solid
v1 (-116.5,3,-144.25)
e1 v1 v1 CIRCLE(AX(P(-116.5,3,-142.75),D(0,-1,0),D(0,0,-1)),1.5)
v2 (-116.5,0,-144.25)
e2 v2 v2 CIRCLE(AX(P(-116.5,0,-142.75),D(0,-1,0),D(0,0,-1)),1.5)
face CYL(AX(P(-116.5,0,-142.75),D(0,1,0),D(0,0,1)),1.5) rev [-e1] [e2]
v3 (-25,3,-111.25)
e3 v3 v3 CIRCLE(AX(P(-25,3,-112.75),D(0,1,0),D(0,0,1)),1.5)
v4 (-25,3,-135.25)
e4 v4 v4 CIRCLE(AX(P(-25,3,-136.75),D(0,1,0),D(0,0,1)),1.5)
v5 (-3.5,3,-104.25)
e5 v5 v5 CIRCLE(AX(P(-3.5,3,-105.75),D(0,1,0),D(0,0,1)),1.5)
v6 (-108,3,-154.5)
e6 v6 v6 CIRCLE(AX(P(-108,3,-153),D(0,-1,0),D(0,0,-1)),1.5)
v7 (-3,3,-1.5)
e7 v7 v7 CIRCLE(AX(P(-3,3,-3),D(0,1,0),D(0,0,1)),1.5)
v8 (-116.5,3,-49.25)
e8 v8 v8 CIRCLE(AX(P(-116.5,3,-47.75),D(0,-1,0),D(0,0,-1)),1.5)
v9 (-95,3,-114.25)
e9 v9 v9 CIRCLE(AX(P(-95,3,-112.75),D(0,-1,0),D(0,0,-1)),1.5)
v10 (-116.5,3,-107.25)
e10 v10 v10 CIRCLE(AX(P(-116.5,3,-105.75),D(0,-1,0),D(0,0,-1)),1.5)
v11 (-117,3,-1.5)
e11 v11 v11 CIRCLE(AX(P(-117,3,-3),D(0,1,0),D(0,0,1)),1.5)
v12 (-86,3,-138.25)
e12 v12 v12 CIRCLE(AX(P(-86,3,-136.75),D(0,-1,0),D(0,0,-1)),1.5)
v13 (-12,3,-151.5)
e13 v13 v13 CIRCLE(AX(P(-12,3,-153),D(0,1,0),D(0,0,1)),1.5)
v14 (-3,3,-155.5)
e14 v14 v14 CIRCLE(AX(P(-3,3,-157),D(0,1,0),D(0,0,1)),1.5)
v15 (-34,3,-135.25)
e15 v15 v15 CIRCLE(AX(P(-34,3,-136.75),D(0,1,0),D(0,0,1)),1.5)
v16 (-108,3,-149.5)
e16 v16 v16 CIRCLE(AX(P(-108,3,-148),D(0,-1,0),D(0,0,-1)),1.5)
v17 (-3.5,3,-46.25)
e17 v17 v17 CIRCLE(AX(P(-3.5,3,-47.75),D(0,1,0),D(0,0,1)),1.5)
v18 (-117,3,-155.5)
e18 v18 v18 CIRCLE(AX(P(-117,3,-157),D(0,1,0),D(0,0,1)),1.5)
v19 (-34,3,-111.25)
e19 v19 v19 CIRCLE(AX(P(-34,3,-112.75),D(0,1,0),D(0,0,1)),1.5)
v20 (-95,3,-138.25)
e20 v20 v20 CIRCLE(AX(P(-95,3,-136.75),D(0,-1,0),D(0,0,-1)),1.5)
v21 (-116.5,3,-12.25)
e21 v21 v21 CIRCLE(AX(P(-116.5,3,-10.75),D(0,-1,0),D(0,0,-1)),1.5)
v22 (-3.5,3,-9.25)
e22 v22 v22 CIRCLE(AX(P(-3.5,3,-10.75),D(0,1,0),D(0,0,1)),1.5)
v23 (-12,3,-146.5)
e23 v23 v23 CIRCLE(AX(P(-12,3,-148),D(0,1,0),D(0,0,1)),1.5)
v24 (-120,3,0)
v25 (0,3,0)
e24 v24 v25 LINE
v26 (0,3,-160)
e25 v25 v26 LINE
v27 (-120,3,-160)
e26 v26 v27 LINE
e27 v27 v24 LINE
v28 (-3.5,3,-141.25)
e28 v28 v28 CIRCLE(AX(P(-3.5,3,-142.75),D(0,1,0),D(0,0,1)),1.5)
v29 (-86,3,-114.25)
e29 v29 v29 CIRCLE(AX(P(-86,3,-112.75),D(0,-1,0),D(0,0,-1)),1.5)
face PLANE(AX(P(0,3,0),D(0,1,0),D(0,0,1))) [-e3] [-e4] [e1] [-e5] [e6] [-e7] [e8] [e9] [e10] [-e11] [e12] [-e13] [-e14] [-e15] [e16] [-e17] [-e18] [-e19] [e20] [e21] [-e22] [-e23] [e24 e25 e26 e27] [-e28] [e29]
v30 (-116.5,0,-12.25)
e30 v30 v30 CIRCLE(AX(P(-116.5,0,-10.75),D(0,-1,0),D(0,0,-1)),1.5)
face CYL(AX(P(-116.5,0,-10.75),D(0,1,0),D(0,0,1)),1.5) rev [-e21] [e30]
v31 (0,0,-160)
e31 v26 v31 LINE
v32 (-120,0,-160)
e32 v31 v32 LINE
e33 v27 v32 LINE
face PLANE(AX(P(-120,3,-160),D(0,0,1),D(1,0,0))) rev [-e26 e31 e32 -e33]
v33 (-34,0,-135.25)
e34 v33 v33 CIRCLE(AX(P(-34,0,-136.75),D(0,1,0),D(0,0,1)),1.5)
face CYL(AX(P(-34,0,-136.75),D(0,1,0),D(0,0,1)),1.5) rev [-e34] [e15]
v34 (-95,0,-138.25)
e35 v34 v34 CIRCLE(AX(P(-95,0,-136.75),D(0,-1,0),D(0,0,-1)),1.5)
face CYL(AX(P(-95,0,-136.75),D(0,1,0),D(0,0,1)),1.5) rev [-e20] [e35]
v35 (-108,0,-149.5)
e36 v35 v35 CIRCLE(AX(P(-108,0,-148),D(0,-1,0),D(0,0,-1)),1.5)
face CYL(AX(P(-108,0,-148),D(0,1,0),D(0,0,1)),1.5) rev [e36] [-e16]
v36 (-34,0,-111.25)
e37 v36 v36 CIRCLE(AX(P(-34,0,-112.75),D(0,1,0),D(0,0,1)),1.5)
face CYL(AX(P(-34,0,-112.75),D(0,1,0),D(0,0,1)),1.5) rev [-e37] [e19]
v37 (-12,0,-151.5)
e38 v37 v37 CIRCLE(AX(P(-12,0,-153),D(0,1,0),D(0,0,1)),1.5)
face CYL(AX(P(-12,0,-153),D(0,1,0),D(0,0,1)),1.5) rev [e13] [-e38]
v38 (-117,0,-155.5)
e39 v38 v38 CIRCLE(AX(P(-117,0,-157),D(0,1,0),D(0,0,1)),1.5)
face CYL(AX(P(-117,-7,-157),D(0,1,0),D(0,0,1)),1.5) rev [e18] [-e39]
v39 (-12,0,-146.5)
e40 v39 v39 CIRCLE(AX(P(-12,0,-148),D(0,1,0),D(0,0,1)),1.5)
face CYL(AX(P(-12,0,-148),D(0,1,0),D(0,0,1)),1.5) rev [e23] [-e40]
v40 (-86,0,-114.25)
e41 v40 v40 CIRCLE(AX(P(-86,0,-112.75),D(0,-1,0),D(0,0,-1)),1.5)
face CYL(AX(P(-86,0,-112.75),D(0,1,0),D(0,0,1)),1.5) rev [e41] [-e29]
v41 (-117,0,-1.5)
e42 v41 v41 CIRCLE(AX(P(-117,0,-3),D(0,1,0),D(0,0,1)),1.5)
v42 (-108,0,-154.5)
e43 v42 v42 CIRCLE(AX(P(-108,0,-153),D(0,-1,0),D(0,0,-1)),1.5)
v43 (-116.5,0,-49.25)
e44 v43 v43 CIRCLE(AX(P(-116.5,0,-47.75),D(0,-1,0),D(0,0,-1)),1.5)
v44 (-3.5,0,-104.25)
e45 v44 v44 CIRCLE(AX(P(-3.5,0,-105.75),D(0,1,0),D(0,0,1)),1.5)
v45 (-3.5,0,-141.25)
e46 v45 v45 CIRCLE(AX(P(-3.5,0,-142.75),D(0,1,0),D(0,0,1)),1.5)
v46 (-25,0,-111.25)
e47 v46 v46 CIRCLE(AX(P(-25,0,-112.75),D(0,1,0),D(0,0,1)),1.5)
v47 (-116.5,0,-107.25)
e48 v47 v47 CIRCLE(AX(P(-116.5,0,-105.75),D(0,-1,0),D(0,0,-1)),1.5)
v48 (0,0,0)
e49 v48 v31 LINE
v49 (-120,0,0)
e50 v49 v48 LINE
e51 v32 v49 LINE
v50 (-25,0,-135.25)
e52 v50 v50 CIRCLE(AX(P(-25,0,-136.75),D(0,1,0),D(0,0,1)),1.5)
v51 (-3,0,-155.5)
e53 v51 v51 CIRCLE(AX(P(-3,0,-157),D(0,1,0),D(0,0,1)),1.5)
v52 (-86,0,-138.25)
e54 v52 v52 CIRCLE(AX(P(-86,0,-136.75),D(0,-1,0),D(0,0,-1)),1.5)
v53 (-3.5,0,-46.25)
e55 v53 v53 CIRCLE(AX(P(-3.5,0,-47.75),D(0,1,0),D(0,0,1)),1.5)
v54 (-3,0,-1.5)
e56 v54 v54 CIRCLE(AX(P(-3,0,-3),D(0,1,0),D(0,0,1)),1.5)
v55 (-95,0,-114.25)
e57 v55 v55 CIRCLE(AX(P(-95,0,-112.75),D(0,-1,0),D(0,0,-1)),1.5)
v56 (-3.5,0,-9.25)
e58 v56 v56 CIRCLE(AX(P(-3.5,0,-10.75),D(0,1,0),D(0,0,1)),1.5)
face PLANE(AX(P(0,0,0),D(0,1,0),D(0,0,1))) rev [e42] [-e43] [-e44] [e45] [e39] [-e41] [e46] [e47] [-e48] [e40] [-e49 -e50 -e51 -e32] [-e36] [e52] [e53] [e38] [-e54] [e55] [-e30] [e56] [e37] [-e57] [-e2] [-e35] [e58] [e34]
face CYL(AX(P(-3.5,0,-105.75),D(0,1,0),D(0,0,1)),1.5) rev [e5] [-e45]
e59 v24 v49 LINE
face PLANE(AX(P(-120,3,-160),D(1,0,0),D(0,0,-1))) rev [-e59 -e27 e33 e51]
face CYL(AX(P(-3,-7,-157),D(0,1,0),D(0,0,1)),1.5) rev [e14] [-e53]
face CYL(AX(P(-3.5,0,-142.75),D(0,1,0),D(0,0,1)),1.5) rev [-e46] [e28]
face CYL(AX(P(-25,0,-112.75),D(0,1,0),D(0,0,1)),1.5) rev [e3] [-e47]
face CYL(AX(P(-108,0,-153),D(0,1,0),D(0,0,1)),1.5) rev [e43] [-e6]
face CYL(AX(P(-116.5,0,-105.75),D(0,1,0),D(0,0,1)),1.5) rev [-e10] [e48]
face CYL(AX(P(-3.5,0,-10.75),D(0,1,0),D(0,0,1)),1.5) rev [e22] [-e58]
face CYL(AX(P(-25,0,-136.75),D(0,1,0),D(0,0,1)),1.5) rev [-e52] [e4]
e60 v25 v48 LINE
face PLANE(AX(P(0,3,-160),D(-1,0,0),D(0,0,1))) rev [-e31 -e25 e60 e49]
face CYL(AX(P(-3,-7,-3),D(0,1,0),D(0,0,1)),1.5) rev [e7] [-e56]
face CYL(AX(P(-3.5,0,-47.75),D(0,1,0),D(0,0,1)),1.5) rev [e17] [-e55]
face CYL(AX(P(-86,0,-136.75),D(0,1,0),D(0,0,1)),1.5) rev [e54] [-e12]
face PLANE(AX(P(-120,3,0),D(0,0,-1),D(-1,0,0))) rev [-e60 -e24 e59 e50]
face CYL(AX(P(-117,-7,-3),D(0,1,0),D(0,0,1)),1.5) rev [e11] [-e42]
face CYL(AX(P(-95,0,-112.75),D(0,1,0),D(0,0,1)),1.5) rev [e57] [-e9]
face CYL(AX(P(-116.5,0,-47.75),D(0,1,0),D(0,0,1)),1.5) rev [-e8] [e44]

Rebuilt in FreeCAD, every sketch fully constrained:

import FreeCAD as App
import Part
import Sketcher
Q = App.Units.Quantity


def add_polygon(sketch, points):
    """Adds a closed chain of lines whose ends are joined by coincident constraints."""
    first, n = sketch.GeometryCount, len(points)
    for a, b in zip(points, points[1:] + points[:1]):
        sketch.addGeometry(Part.LineSegment(App.Vector(*a, 0), App.Vector(*b, 0)), False)
    for i in range(n):
        sketch.addConstraint(Sketcher.Constraint("Coincident", first + i, 2, first + (i + 1) % n, 1))

doc = App.newDocument("Part")
body = doc.addObject("PartDesign::Body", "Body")

# Sketch on XZ plane
sketch1 = body.newObject("Sketcher::SketchObject", "Sketch")
sketch1.AttachmentSupport = (doc.getObject("XZ_Plane"), [""])
sketch1.MapMode = "FlatFace"
add_polygon(sketch1, [(-120, -160), (-120, 0), (0, 0), (0, -160)])  # lines 0-3
sketch1.addConstraint([
    Sketcher.Constraint("Vertical", 0),
    Sketcher.Constraint("Horizontal", 1),
    Sketcher.Constraint("Vertical", 2),
    Sketcher.Constraint("Horizontal", 3),
    Sketcher.Constraint("Coincident", 1, 2, -1, 1),
    Sketcher.Constraint("DistanceX", 1, 1, 1, 2, Q("120 mm")),
    Sketcher.Constraint("DistanceY", 0, 1, 0, 2, Q("160 mm")),
])
pad1 = body.newObject("PartDesign::Pad", "Pad")
pad1.Profile = sketch1
pad1.Length = 3
pad1.Reversed = True

# Sketch on XZ plane
sketch2 = body.newObject("Sketcher::SketchObject", "Sketch001")
sketch2.AttachmentSupport = (doc.getObject("XZ_Plane"), [""])
sketch2.MapMode = "FlatFace"
sketch2.AttachmentOffset = App.Placement(App.Vector(0, 0, -3), App.Rotation())
sketch2.addGeometry([
    Part.Circle(App.Vector(-25, -112.8, 0), App.Vector(0, 0, 1), 1.5),  # 0
    Part.Circle(App.Vector(-3.5, -105.8, 0), App.Vector(0, 0, 1), 1.5),  # 1
    Part.Circle(App.Vector(-34, -136.8, 0), App.Vector(0, 0, 1), 1.5),  # 2
    Part.Circle(App.Vector(-25, -136.8, 0), App.Vector(0, 0, 1), 1.5),  # 3
    Part.Circle(App.Vector(-34, -112.8, 0), App.Vector(0, 0, 1), 1.5),  # 4
    Part.Circle(App.Vector(-3.5, -142.8, 0), App.Vector(0, 0, 1), 1.5),  # 5
    Part.Circle(App.Vector(-12, -148, 0), App.Vector(0, 0, 1), 1.5),  # 6
    Part.Circle(App.Vector(-12, -153, 0), App.Vector(0, 0, 1), 1.5),  # 7
    Part.Circle(App.Vector(-108, -153, 0), App.Vector(0, 0, 1), 1.5),  # 8
    Part.Circle(App.Vector(-108, -148, 0), App.Vector(0, 0, 1), 1.5),  # 9
    Part.Circle(App.Vector(-116.5, -142.8, 0), App.Vector(0, 0, 1), 1.5),  # 10
    Part.Circle(App.Vector(-95, -136.8, 0), App.Vector(0, 0, 1), 1.5),  # 11
    Part.Circle(App.Vector(-86, -136.8, 0), App.Vector(0, 0, 1), 1.5),  # 12
    Part.Circle(App.Vector(-86, -112.8, 0), App.Vector(0, 0, 1), 1.5),  # 13
    Part.Circle(App.Vector(-95, -112.8, 0), App.Vector(0, 0, 1), 1.5),  # 14
    Part.Circle(App.Vector(-116.5, -105.8, 0), App.Vector(0, 0, 1), 1.5),  # 15
    Part.Circle(App.Vector(-3.5, -47.8, 0), App.Vector(0, 0, 1), 1.5),  # 16
    Part.Circle(App.Vector(-3.5, -10.8, 0), App.Vector(0, 0, 1), 1.5),  # 17
    Part.Circle(App.Vector(-116.5, -47.8, 0), App.Vector(0, 0, 1), 1.5),  # 18
    Part.Circle(App.Vector(-116.5, -10.8, 0), App.Vector(0, 0, 1), 1.5),  # 19
], False)
sketch2.addConstraint([
    Sketcher.Constraint("Equal", 0, 1),
    Sketcher.Constraint("Equal", 1, 2),
    Sketcher.Constraint("Equal", 2, 3),
    Sketcher.Constraint("Equal", 3, 4),
    Sketcher.Constraint("Equal", 4, 5),
    Sketcher.Constraint("Equal", 5, 6),
    Sketcher.Constraint("Equal", 6, 7),
    Sketcher.Constraint("Equal", 7, 8),
    Sketcher.Constraint("Equal", 8, 9),
    Sketcher.Constraint("Equal", 9, 10),
    Sketcher.Constraint("Equal", 10, 11),
    Sketcher.Constraint("Equal", 11, 12),
    Sketcher.Constraint("Equal", 12, 13),
    Sketcher.Constraint("Equal", 13, 14),
    Sketcher.Constraint("Equal", 14, 15),
    Sketcher.Constraint("Equal", 15, 16),
    Sketcher.Constraint("Equal", 16, 17),
    Sketcher.Constraint("Equal", 17, 18),
    Sketcher.Constraint("Equal", 18, 19),
    Sketcher.Constraint("Horizontal", 2, 3, 3, 3),
    Sketcher.Constraint("Horizontal", 0, 3, 4, 3),
    Sketcher.Constraint("Horizontal", 7, 3, 8, 3),
    Sketcher.Constraint("Horizontal", 6, 3, 9, 3),
    Sketcher.Constraint("Horizontal", 5, 3, 10, 3),
    Sketcher.Constraint("Horizontal", 3, 3, 11, 3),
    Sketcher.Constraint("Horizontal", 11, 3, 12, 3),
    Sketcher.Constraint("Horizontal", 4, 3, 13, 3),
    Sketcher.Constraint("Horizontal", 13, 3, 14, 3),
    Sketcher.Constraint("Horizontal", 1, 3, 15, 3),
    Sketcher.Constraint("Horizontal", 16, 3, 18, 3),
    Sketcher.Constraint("Horizontal", 17, 3, 19, 3),
    Sketcher.Constraint("Vertical", 0, 3, 3, 3),
    Sketcher.Constraint("Vertical", 2, 3, 4, 3),
    Sketcher.Constraint("Vertical", 1, 3, 5, 3),
    Sketcher.Constraint("Vertical", 6, 3, 7, 3),
    Sketcher.Constraint("Vertical", 8, 3, 9, 3),
    Sketcher.Constraint("Vertical", 12, 3, 13, 3),
    Sketcher.Constraint("Vertical", 11, 3, 14, 3),
    Sketcher.Constraint("Vertical", 10, 3, 15, 3),
    Sketcher.Constraint("Vertical", 5, 3, 16, 3),
    Sketcher.Constraint("Vertical", 16, 3, 17, 3),
    Sketcher.Constraint("Vertical", 15, 3, 18, 3),
    Sketcher.Constraint("Vertical", 18, 3, 19, 3),
    Sketcher.Constraint("Diameter", 0, Q("3 mm")),
    Sketcher.Constraint("DistanceX", 0, 3, -1, 1, Q("25 mm")),
    Sketcher.Constraint("DistanceX", 2, 3, -1, 1, Q("34 mm")),
    Sketcher.Constraint("DistanceX", 6, 3, -1, 1, Q("12 mm")),
    Sketcher.Constraint("DistanceY", 6, 3, -1, 1, Q("148 mm")),
    Sketcher.Constraint("DistanceY", 7, 3, -1, 1, Q("153 mm")),
    Sketcher.Constraint("DistanceX", 8, 3, -1, 1, Q("108 mm")),
    Sketcher.Constraint("DistanceX", 11, 3, -1, 1, Q("95 mm")),
    Sketcher.Constraint("DistanceX", 12, 3, -1, 1, Q("86 mm")),
    Sketcher.Constraint("DistanceY", 0, 3, 1, 3, Q("7 mm")),
    Sketcher.Constraint("DistanceY", 2, 3, 0, 3, Q("24 mm")),
    Sketcher.Constraint("DistanceY", 5, 3, 3, 3, Q("6 mm")),
    Sketcher.Constraint("DistanceY", 1, 3, 16, 3, Q("58 mm")),
    Sketcher.Constraint("DistanceY", 16, 3, 17, 3, Q("37 mm")),
    Sketcher.Constraint("DistanceX", 19, 3, 17, 3, Q("113 mm")),
    Sketcher.Constraint("DistanceX", 1, 3, -1, 1, Q("3.5 mm")),
    Sketcher.Constraint("DistanceY", 0, 3, -1, 1, Q("112.75 mm")),
])
pocket1 = body.newObject("PartDesign::Pocket", "Pocket")
pocket1.Profile = sketch2
pocket1.Length = 3
pocket1.Reversed = True

# Sketch on XZ plane
sketch3 = body.newObject("Sketcher::SketchObject", "Sketch002")
sketch3.AttachmentSupport = (doc.getObject("XZ_Plane"), [""])
sketch3.MapMode = "FlatFace"
sketch3.AttachmentOffset = App.Placement(App.Vector(0, 0, -3), App.Rotation())
sketch3.addGeometry([
    Part.Circle(App.Vector(-117, -157, 0), App.Vector(0, 0, 1), 1.5),
    Part.Circle(App.Vector(-3, -157, 0), App.Vector(0, 0, 1), 1.5),
    Part.Circle(App.Vector(-117, -3, 0), App.Vector(0, 0, 1), 1.5),
    Part.Circle(App.Vector(-3, -3, 0), App.Vector(0, 0, 1), 1.5),
], False)
sketch3.addConstraint([
    Sketcher.Constraint("Equal", 0, 1),
    Sketcher.Constraint("Equal", 1, 2),
    Sketcher.Constraint("Equal", 2, 3),
    Sketcher.Constraint("Horizontal", 0, 3, 1, 3),
    Sketcher.Constraint("Horizontal", 2, 3, 3, 3),
    Sketcher.Constraint("Vertical", 0, 3, 2, 3),
    Sketcher.Constraint("Vertical", 1, 3, 3, 3),
    Sketcher.Constraint("Diameter", 0, Q("3 mm")),
    Sketcher.Constraint("DistanceX", 0, 3, -1, 1, Q("117 mm")),
    Sketcher.Constraint("DistanceY", 0, 3, -1, 1, Q("157 mm")),
    Sketcher.Constraint("DistanceX", 1, 3, -1, 1, Q("3 mm")),
    Sketcher.Constraint("DistanceY", 2, 3, -1, 1, Q("3 mm")),
])
pocket2 = body.newObject("PartDesign::Pocket", "Pocket001")
pocket2.Profile = sketch3
pocket2.Length = 10
pocket2.Reversed = True

doc.recompute()
